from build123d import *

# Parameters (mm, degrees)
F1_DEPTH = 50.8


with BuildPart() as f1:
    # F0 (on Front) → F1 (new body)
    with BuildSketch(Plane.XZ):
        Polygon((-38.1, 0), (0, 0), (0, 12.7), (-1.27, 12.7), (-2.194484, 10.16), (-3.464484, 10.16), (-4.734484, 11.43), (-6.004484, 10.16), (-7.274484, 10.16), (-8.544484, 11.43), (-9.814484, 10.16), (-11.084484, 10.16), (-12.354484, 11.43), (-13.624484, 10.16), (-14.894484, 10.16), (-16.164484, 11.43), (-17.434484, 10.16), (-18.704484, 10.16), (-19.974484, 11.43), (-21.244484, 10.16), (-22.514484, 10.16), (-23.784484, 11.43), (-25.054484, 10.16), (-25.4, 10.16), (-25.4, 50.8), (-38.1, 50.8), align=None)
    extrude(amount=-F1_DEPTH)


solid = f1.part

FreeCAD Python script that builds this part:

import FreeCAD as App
import Part
import Sketcher
Q = App.Units.Quantity


def add_polygon(sketch, points):
    """Adds a closed chain of lines whose ends are joined by coincident constraints."""
    first, n = sketch.GeometryCount, len(points)
    for a, b in zip(points, points[1:] + points[:1]):
        sketch.addGeometry(Part.LineSegment(App.Vector(*a, 0), App.Vector(*b, 0)), False)
    for i in range(n):
        sketch.addConstraint(Sketcher.Constraint("Coincident", first + i, 2, first + (i + 1) % n, 1))

doc = App.newDocument("Part")
body = doc.addObject("PartDesign::Body", "Body")

# Sketch on XZ plane
sketch1 = body.newObject("Sketcher::SketchObject", "Sketch")
sketch1.AttachmentSupport = (doc.getObject("XZ_Plane"), [""])
sketch1.MapMode = "FlatFace"
add_polygon(sketch1, [(-38.1, 0), (0, 0), (0, 12.7), (-1.27, 12.7), (-2.19, 10.16), (-3.46, 10.16), (-4.73, 11.43), (-6, 10.16), (-7.27, 10.16), (-8.54, 11.43), (-9.81, 10.16), (-11.08, 10.16), (-12.35, 11.43), (-13.62, 10.16), (-14.89, 10.16), (-16.16, 11.43), (-17.43, 10.16), (-18.7, 10.16), (-19.97, 11.43), (-21.24, 10.16), (-22.51, 10.16), (-23.78, 11.43), (-25.05, 10.16), (-25.4, 10.16), (-25.4, 50.8), (-38.1, 50.8)])  # lines 0-25
sketch1.addConstraint([
    Sketcher.Constraint("Horizontal", 0),
    Sketcher.Constraint("Vertical", 1),
    Sketcher.Constraint("Horizontal", 2),
    Sketcher.Constraint("Horizontal", 4),
    Sketcher.Constraint("Horizontal", 7),
    Sketcher.Constraint("Horizontal", 10),
    Sketcher.Constraint("Horizontal", 13),
    Sketcher.Constraint("Horizontal", 16),
    Sketcher.Constraint("Horizontal", 19),
    Sketcher.Constraint("Horizontal", 22),
    Sketcher.Constraint("Vertical", 23),
    Sketcher.Constraint("Horizontal", 24),
    Sketcher.Constraint("Vertical", 25),
    Sketcher.Constraint("Coincident", 0, 2, -1, 1),
    Sketcher.Constraint("Perpendicular", 5, 6),
    Sketcher.Constraint("Perpendicular", 6, 8),
    Sketcher.Constraint("Perpendicular", 8, 9),
    Sketcher.Constraint("Perpendicular", 9, 11),
    Sketcher.Constraint("Perpendicular", 11, 12),
    Sketcher.Constraint("Perpendicular", 12, 14),
    Sketcher.Constraint("Perpendicular", 14, 15),
    Sketcher.Constraint("Perpendicular", 15, 17),
    Sketcher.Constraint("Perpendicular", 17, 18),
    Sketcher.Constraint("Perpendicular", 18, 20),
    Sketcher.Constraint("Perpendicular", 20, 21),
    Sketcher.Constraint("Horizontal", 4, 2, 6, 2),
    Sketcher.Constraint("Horizontal", 5, 2, 8, 2),
    Sketcher.Constraint("Horizontal", 7, 2, 9, 2),
    Sketcher.Constraint("Horizontal", 8, 2, 11, 2),
    Sketcher.Constraint("Horizontal", 10, 2, 12, 2),
    Sketcher.Constraint("Horizontal", 11, 2, 14, 2),
    Sketcher.Constraint("Horizontal", 13, 2, 15, 2),
    Sketcher.Constraint("Horizontal", 14, 2, 17, 2),
    Sketcher.Constraint("Horizontal", 16, 2, 18, 2),
    Sketcher.Constraint("Horizontal", 17, 2, 20, 2),
    Sketcher.Constraint("Horizontal", 19, 2, 21, 2),
    Sketcher.Constraint("Equal", 2, 4),
    Sketcher.Constraint("Equal", 4, 7),
    Sketcher.Constraint("Equal", 7, 10),
    Sketcher.Constraint("Equal", 10, 13),
    Sketcher.Constraint("Equal", 13, 16),
    Sketcher.Constraint("Equal", 16, 19),
    Sketcher.Constraint("Equal", 24, 1),
    Sketcher.Constraint("Equal", 5, 6),
    Sketcher.Constraint("DistanceY", 25, 2, 25, 1, Q("2 in")),
    Sketcher.Constraint("DistanceX", 0, 1, 0, 2, Q("1.5 in")),
    Sketcher.Constraint("DistanceX", 24, 2, 24, 1, Q("0.5 in")),
    Sketcher.Constraint("DistanceY", 23, 1, 23, 2, Q("1.6 in")),
    Sketcher.Constraint("Angle", 3, Q("-109.999992 deg")),
    Sketcher.Constraint("DistanceX", 2, 2, 2, 1, Q("0.05 in")),
    Sketcher.Constraint("DistanceX", 5, 2, 3, 2, Q("0.1 in")),
])
pad1 = body.newObject("PartDesign::Pad", "Pad")
pad1.Profile = sketch1
pad1.Length = Q("2 in")
pad1.Reversed = True

doc.recompute()
